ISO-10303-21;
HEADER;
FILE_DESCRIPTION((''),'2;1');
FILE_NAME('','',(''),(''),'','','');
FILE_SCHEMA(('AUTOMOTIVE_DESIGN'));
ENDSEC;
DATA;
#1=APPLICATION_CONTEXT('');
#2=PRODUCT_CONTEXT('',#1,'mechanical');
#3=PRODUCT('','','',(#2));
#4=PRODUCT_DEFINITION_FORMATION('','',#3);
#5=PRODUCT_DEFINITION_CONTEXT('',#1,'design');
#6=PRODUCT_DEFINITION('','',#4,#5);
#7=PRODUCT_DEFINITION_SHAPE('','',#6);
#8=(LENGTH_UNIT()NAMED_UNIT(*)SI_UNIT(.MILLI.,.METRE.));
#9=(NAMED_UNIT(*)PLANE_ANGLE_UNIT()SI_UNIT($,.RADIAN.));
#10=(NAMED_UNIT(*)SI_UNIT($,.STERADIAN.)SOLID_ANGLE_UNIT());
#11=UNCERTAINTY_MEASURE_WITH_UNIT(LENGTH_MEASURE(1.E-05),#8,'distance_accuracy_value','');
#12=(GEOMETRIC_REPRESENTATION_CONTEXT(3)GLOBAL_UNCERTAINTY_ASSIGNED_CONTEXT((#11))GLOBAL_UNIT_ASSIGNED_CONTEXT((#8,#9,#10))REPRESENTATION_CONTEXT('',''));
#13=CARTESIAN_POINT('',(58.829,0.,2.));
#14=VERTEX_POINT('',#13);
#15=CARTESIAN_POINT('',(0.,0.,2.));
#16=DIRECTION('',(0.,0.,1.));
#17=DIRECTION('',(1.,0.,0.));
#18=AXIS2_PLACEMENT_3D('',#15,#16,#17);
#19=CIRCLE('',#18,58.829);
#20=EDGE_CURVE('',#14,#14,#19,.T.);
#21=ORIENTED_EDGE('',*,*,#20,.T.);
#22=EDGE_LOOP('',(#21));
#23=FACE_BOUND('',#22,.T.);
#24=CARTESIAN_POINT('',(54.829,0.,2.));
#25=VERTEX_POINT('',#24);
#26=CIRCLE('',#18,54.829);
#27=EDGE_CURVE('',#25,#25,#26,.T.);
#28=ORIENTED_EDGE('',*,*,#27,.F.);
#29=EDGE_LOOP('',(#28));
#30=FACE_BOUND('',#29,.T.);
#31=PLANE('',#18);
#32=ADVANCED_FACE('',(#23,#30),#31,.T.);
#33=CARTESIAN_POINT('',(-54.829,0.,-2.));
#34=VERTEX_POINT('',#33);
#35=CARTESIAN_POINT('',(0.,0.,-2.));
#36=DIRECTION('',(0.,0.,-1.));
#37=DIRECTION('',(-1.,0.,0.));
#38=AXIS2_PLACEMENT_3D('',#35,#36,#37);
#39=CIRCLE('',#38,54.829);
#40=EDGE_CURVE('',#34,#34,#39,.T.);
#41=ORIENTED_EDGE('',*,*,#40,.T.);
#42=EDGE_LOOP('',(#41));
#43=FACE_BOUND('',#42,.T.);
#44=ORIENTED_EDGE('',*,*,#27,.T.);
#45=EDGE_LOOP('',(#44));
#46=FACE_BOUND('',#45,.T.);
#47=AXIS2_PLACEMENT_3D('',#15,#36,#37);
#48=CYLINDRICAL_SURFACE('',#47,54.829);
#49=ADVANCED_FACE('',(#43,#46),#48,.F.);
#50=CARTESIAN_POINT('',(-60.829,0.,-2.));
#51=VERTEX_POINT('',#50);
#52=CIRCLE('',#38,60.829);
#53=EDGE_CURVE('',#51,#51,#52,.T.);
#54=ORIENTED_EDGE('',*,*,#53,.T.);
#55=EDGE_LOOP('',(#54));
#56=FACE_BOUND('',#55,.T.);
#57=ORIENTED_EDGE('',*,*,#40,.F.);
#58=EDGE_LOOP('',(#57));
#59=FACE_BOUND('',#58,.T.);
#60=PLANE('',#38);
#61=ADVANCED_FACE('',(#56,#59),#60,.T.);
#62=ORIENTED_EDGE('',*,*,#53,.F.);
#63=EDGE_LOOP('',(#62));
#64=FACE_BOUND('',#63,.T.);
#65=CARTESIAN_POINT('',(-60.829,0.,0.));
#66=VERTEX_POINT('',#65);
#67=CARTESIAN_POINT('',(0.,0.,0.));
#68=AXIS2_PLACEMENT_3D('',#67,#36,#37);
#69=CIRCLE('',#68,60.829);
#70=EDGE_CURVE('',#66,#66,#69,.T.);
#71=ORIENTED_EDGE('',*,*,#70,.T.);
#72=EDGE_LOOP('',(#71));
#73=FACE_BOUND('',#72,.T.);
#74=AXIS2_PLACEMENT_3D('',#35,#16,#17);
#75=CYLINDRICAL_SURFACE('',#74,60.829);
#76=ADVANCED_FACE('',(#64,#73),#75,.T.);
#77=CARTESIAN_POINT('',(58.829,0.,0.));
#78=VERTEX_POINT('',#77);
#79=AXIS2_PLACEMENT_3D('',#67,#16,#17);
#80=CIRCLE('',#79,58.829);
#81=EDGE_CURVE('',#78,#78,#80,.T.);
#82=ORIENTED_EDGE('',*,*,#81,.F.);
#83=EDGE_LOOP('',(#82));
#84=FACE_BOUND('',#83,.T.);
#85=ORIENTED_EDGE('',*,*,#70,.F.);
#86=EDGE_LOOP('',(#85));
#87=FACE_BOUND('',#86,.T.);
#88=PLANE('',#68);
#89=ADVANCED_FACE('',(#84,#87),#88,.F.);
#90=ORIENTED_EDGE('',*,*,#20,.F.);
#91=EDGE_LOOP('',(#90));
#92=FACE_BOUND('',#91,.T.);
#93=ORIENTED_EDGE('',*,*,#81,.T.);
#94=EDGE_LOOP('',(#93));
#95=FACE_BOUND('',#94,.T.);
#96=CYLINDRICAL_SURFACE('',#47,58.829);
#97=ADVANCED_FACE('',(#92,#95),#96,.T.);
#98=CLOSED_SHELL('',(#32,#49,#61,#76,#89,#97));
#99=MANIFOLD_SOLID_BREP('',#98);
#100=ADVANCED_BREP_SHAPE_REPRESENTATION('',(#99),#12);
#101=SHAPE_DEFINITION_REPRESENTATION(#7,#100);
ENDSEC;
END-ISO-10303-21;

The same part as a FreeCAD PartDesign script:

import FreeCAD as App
import Part
import Sketcher

V = App.Vector
Q = App.Units.Quantity

doc = App.newDocument("Part")
body = doc.addObject("PartDesign::Body", "Body")

# Sketch on XY plane
sketch1 = body.newObject("Sketcher::SketchObject", "Sketch")
sketch1.AttachmentSupport = (doc.getObject("XY_Plane"), [""])
sketch1.MapMode = "FlatFace"
sketch1.addGeometry(Part.Circle(V(0, 0, 0), V(0, 0, 1), 58.829), False)
sketch1.addGeometry(Part.Circle(V(0, 0, 0), V(0, 0, 1), 54.829), False)
sketch1.addConstraint(Sketcher.Constraint("Coincident", 0, 3, -1, 1))
sketch1.addConstraint(Sketcher.Constraint("Coincident", 1, 3, -1, 1))
sketch1.addConstraint(Sketcher.Constraint("Diameter", 0, Q("117.658 mm")))
sketch1.addConstraint(Sketcher.Constraint("Diameter", 1, Q("109.658 mm")))
pad1 = body.newObject("PartDesign::Pad", "Pad")
pad1.Profile = sketch1
pad1.Length = 2

# Sketch on XY plane
sketch2 = body.newObject("Sketcher::SketchObject", "Sketch001")
sketch2.AttachmentSupport = (doc.getObject("XY_Plane"), [""])
sketch2.MapMode = "FlatFace"
sketch2.AttachmentOffset = App.Placement(V(0, 0, -2), App.Rotation())
sketch2.addGeometry(Part.Circle(V(0, 0, 0), V(0, 0, 1), 60.829), False)
sketch2.addGeometry(Part.Circle(V(0, 0, 0), V(0, 0, 1), 54.829), False)
sketch2.addConstraint(Sketcher.Constraint("Coincident", 0, 3, -1, 1))
sketch2.addConstraint(Sketcher.Constraint("Coincident", 1, 3, -1, 1))
sketch2.addConstraint(Sketcher.Constraint("Diameter", 0, Q("121.658 mm")))
sketch2.addConstraint(Sketcher.Constraint("Diameter", 1, Q("109.658 mm")))
pad2 = body.newObject("PartDesign::Pad", "Pad001")
pad2.Profile = sketch2
pad2.Length = 2

doc.recompute()
